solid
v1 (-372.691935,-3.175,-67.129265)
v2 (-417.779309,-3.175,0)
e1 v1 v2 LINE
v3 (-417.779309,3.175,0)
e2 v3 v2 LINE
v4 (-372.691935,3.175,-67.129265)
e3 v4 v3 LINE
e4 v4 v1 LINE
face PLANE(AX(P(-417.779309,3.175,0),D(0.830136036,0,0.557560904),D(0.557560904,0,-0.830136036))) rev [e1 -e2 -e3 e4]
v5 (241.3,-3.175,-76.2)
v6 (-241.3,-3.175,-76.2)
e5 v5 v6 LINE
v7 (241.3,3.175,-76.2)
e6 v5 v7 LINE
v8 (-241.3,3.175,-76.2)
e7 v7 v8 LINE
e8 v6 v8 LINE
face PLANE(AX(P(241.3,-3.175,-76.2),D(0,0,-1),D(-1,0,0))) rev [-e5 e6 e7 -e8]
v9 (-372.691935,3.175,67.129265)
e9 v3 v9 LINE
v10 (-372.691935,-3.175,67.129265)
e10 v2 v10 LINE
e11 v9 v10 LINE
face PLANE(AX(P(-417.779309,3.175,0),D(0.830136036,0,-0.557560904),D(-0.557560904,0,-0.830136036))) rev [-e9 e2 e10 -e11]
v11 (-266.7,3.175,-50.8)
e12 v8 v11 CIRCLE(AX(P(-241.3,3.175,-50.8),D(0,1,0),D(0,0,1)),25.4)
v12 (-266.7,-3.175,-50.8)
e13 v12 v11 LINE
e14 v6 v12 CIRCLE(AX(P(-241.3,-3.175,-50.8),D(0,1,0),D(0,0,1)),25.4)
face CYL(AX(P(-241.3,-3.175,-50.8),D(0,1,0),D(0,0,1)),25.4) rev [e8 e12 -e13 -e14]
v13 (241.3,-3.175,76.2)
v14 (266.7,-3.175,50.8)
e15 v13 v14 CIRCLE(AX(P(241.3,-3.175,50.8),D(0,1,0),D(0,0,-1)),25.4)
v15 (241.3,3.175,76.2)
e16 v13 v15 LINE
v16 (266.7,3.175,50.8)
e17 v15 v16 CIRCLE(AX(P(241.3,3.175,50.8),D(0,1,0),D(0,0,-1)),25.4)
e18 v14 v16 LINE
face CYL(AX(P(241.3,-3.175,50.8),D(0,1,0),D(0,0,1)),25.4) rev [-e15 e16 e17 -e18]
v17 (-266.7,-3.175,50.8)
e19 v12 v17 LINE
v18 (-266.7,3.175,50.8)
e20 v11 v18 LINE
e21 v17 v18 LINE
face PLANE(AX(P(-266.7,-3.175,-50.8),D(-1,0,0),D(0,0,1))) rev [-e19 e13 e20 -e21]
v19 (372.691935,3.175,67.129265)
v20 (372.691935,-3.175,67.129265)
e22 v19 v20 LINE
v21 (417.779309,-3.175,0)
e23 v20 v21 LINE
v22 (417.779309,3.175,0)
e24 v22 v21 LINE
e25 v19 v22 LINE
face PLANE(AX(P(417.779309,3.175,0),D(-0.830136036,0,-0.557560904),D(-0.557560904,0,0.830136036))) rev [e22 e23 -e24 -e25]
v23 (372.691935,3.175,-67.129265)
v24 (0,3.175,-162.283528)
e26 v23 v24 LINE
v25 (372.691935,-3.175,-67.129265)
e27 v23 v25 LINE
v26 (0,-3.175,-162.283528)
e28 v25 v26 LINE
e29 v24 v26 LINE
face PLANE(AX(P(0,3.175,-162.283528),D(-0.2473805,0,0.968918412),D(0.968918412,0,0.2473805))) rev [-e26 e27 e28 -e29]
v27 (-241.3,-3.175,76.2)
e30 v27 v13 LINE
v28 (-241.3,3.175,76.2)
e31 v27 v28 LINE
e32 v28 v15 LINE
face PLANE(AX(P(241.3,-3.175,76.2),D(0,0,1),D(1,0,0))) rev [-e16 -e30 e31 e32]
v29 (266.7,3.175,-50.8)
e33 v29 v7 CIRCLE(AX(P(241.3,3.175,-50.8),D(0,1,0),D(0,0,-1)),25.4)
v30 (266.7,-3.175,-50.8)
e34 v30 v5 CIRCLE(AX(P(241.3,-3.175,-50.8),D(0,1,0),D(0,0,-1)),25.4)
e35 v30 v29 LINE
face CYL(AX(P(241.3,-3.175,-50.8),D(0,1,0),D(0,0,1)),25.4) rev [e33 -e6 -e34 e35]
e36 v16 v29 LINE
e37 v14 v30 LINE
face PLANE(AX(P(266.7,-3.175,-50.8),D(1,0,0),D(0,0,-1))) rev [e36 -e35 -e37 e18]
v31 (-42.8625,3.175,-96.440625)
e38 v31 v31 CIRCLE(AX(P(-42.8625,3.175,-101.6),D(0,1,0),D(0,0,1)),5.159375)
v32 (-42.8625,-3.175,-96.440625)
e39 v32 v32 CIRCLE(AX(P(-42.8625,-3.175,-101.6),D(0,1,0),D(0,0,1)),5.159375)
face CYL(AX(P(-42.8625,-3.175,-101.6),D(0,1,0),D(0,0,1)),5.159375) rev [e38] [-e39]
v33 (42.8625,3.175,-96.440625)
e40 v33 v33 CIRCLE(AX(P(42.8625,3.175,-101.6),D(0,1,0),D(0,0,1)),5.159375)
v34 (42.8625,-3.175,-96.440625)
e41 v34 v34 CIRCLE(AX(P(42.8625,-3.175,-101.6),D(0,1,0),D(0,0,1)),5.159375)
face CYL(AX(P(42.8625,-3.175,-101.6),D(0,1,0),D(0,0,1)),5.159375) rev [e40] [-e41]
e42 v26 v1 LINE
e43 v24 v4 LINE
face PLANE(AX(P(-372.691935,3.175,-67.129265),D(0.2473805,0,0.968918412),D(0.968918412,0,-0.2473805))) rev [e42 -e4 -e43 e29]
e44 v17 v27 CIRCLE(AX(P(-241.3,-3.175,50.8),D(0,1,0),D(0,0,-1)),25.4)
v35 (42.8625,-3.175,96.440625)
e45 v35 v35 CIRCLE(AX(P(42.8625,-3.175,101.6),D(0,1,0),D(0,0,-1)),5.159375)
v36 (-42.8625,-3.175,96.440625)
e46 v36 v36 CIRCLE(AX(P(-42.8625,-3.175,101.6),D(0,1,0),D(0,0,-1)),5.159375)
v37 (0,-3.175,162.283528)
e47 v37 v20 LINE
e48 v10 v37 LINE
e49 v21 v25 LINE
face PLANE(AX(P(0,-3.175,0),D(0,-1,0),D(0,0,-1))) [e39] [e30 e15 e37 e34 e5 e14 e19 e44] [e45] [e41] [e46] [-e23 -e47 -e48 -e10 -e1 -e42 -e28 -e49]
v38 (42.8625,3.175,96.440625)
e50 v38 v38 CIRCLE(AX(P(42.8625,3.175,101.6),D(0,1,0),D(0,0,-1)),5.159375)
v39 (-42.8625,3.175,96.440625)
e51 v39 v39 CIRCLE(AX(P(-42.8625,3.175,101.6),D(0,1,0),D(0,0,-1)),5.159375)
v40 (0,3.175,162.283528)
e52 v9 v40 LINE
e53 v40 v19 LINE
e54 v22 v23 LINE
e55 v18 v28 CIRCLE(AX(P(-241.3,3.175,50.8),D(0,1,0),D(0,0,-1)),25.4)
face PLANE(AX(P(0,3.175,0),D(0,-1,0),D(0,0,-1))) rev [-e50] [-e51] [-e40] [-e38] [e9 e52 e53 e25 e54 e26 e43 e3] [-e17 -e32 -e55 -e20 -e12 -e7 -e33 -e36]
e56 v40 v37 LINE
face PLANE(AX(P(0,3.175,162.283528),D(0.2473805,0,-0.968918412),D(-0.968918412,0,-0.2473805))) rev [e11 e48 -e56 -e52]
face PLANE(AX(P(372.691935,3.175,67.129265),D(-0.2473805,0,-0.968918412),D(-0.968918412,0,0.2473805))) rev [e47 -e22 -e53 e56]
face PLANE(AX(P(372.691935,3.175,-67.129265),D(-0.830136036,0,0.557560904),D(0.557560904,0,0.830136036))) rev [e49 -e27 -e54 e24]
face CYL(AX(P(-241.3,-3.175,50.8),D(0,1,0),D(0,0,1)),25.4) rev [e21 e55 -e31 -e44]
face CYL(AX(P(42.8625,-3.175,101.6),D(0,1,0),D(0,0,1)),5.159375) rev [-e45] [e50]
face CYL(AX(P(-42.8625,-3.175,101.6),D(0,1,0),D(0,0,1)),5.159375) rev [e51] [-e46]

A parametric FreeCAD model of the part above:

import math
import FreeCAD as App
import Part
import Sketcher
Q = App.Units.Quantity


def add_polygon(sketch, points):
    """Adds a closed chain of lines whose ends are joined by coincident constraints."""
    first, n = sketch.GeometryCount, len(points)
    for a, b in zip(points, points[1:] + points[:1]):
        sketch.addGeometry(Part.LineSegment(App.Vector(*a, 0), App.Vector(*b, 0)), False)
    for i in range(n):
        sketch.addConstraint(Sketcher.Constraint("Coincident", first + i, 2, first + (i + 1) % n, 1))

doc = App.newDocument("Part")
body = doc.addObject("PartDesign::Body", "Body")

# Sketch on XZ plane
sketch1 = body.newObject("Sketcher::SketchObject", "Sketch")
sketch1.AttachmentSupport = (doc.getObject("XZ_Plane"), [""])
sketch1.MapMode = "FlatFace"
add_polygon(sketch1, [(0, -162.283528), (-372.691935, -67.129265), (-417.779309, 0), (-372.691935, 67.129265), (0, 162.283528), (372.691935, 67.129265), (417.779309, 0), (372.691935, -67.129265)])  # lines 0-7
sketch1.addConstraint([
    Sketcher.Constraint("Symmetric", 0, 2, 4, 2, -1, 1),
    Sketcher.Constraint("Symmetric", 1, 2, 5, 2, -1, 1),
    Sketcher.Constraint("Symmetric", 2, 2, 6, 2, -1, 1),
    Sketcher.Constraint("Symmetric", 3, 2, 7, 2, -1, 1),
    Sketcher.Constraint("Symmetric", 2, 2, 4, 2, -2),
    Sketcher.Constraint("PointOnObject", 1, 2, -1),
    Sketcher.Constraint("PointOnObject", 3, 2, -2),
    Sketcher.Constraint("Distance", 1, Q("80.865378 mm")),
    Sketcher.Constraint("DistanceX", 1, 2, -1, 1, Q("417.779309 mm")),
    Sketcher.Constraint("DistanceY", 0, 2, 2, 2, Q("134.258529 mm")),
    Sketcher.Constraint("Distance", 0, Q("384.647387 mm")),
])
pad1 = body.newObject("PartDesign::Pad", "Pad")
pad1.Profile = sketch1
pad1.Length = Q("0.25 in")
pad1.Midplane = True

# Sketch on XZ plane
sketch2 = body.newObject("Sketcher::SketchObject", "Sketch001")
sketch2.AttachmentSupport = (doc.getObject("XZ_Plane"), [""])
sketch2.MapMode = "FlatFace"
sketch2.addGeometry([
    Part.Circle(App.Vector(42.8625, -101.6, 0), App.Vector(0, 0, 1), 5.159375),  # 0
    Part.Circle(App.Vector(-42.8625, -101.6, 0), App.Vector(0, 0, 1), 5.159375),  # 1
    Part.Circle(App.Vector(-42.8625, 101.6, 0), App.Vector(0, 0, 1), 5.159375),  # 2
    Part.Circle(App.Vector(42.8625, 101.6, 0), App.Vector(0, 0, 1), 5.159375),  # 3
    Part.LineSegment(App.Vector(241.3, -76.2, 0), App.Vector(-241.3, -76.2, 0)),  # 4
    Part.ArcOfCircle(Part.Circle(App.Vector(-241.3, -50.8, 0), App.Vector(0, 0, 1), 25.4), math.radians(180), math.radians(270)),  # 5
    Part.LineSegment(App.Vector(-266.7, -50.8, 0), App.Vector(-266.7, 50.8, 0)),  # 6
    Part.ArcOfCircle(Part.Circle(App.Vector(-241.3, 50.8, 0), App.Vector(0, 0, 1), 25.4), math.radians(90), math.radians(180)),  # 7
    Part.LineSegment(App.Vector(-241.3, 76.2, 0), App.Vector(241.3, 76.2, 0)),  # 8
    Part.ArcOfCircle(Part.Circle(App.Vector(241.3, 50.8, 0), App.Vector(0, 0, 1), 25.4), math.radians(0), math.radians(90)),  # 9
    Part.LineSegment(App.Vector(266.7, 50.8, 0), App.Vector(266.7, -50.8, 0)),  # 10
    Part.ArcOfCircle(Part.Circle(App.Vector(241.3, -50.8, 0), App.Vector(0, 0, 1), 25.4), math.radians(-90), math.radians(0)),  # 11
], False)
sketch2.addConstraint([
    Sketcher.Constraint("Tangent", 4, 2, 5, 2),
    Sketcher.Constraint("Tangent", 5, 1, 6, 1),
    Sketcher.Constraint("Tangent", 6, 2, 7, 2),
    Sketcher.Constraint("Tangent", 7, 1, 8, 1),
    Sketcher.Constraint("Tangent", 8, 2, 9, 2),
    Sketcher.Constraint("Tangent", 9, 1, 10, 1),
    Sketcher.Constraint("Tangent", 10, 2, 11, 2),
    Sketcher.Constraint("Tangent", 11, 1, 4, 1),
    Sketcher.Constraint("Horizontal", 4),
    Sketcher.Constraint("Vertical", 6),
    Sketcher.Constraint("Horizontal", 8),
    Sketcher.Constraint("Vertical", 10),
    Sketcher.Constraint("Equal", 0, 1),
    Sketcher.Constraint("Equal", 1, 2),
    Sketcher.Constraint("Equal", 2, 3),
    Sketcher.Constraint("Equal", 5, 7),
    Sketcher.Constraint("Equal", 7, 9),
    Sketcher.Constraint("Equal", 9, 11),
    Sketcher.Constraint("Symmetric", 0, 3, 2, 3, -1, 1),
    Sketcher.Constraint("Symmetric", 1, 3, 3, 3, -1, 1),
    Sketcher.Constraint("Symmetric", 5, 3, 9, 3, -1, 1),
    Sketcher.Constraint("Symmetric", 0, 3, 1, 3, -2),
    Sketcher.Constraint("Radius", 5, Q("1 in")),
    Sketcher.Constraint("DistanceX", 4, 2, 4, 1, Q("19 in")),
    Sketcher.Constraint("DistanceY", 6, 1, 6, 2, Q("4 in")),
    Sketcher.Constraint("Diameter", 0, Q("0.40625 in")),
    Sketcher.Constraint("DistanceY", 0, 3, -1, 1, Q("4 in")),
    Sketcher.Constraint("DistanceX", -1, 1, 0, 3, Q("1.6875 in")),
])
pocket1 = body.newObject("PartDesign::Pocket", "Pocket")
pocket1.Profile = sketch2
pocket1.Type = "ThroughAll"
pocket1.Midplane = True

doc.recompute()
